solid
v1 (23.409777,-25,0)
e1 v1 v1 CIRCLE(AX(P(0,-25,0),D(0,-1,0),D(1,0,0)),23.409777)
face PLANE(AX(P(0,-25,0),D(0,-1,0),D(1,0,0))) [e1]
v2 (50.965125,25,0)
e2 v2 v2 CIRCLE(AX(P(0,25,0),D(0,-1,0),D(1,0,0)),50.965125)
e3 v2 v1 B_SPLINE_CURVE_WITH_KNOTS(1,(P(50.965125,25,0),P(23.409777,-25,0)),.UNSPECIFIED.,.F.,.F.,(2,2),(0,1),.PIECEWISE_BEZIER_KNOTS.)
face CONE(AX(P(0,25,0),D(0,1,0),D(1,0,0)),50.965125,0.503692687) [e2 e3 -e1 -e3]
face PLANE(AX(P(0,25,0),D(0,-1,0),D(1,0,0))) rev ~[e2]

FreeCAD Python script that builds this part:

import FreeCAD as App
import Part
import Sketcher

V = App.Vector
Q = App.Units.Quantity

doc = App.newDocument("Part")
body = doc.addObject("PartDesign::Body", "Body")

# Sketch on XZ plane
sketch1 = body.newObject("Sketcher::SketchObject", "Sketch")
sketch1.AttachmentSupport = (doc.getObject("XZ_Plane"), [""])
sketch1.MapMode = "FlatFace"
sketch1.AttachmentOffset = App.Placement(V(0, 0, -25), App.Rotation())
sketch1.addGeometry(Part.Circle(V(0, 0, 0), V(0, 0, 1), 51), False)
sketch1.addConstraint(Sketcher.Constraint("Coincident", 0, 3, -1, 1))
sketch1.addConstraint(Sketcher.Constraint("Diameter", 0, Q("101.93025 mm")))

# Sketch on XZ plane
sketch2 = body.newObject("Sketcher::SketchObject", "Sketch001")
sketch2.AttachmentSupport = (doc.getObject("XZ_Plane"), [""])
sketch2.MapMode = "FlatFace"
sketch2.AttachmentOffset = App.Placement(V(0, 0, 25), App.Rotation())
sketch2.addGeometry(Part.Circle(V(0, 0, 0), V(0, 0, 1), 23), False)
sketch2.addConstraint(Sketcher.Constraint("Coincident", 0, 3, -1, 1))
sketch2.addConstraint(Sketcher.Constraint("Diameter", 0, Q("46.819554 mm")))

additiveloft = body.newObject("PartDesign::AdditiveLoft", "AdditiveLoft")
additiveloft.Profile = sketch1
additiveloft.Sections = [sketch2]

doc.recompute()
